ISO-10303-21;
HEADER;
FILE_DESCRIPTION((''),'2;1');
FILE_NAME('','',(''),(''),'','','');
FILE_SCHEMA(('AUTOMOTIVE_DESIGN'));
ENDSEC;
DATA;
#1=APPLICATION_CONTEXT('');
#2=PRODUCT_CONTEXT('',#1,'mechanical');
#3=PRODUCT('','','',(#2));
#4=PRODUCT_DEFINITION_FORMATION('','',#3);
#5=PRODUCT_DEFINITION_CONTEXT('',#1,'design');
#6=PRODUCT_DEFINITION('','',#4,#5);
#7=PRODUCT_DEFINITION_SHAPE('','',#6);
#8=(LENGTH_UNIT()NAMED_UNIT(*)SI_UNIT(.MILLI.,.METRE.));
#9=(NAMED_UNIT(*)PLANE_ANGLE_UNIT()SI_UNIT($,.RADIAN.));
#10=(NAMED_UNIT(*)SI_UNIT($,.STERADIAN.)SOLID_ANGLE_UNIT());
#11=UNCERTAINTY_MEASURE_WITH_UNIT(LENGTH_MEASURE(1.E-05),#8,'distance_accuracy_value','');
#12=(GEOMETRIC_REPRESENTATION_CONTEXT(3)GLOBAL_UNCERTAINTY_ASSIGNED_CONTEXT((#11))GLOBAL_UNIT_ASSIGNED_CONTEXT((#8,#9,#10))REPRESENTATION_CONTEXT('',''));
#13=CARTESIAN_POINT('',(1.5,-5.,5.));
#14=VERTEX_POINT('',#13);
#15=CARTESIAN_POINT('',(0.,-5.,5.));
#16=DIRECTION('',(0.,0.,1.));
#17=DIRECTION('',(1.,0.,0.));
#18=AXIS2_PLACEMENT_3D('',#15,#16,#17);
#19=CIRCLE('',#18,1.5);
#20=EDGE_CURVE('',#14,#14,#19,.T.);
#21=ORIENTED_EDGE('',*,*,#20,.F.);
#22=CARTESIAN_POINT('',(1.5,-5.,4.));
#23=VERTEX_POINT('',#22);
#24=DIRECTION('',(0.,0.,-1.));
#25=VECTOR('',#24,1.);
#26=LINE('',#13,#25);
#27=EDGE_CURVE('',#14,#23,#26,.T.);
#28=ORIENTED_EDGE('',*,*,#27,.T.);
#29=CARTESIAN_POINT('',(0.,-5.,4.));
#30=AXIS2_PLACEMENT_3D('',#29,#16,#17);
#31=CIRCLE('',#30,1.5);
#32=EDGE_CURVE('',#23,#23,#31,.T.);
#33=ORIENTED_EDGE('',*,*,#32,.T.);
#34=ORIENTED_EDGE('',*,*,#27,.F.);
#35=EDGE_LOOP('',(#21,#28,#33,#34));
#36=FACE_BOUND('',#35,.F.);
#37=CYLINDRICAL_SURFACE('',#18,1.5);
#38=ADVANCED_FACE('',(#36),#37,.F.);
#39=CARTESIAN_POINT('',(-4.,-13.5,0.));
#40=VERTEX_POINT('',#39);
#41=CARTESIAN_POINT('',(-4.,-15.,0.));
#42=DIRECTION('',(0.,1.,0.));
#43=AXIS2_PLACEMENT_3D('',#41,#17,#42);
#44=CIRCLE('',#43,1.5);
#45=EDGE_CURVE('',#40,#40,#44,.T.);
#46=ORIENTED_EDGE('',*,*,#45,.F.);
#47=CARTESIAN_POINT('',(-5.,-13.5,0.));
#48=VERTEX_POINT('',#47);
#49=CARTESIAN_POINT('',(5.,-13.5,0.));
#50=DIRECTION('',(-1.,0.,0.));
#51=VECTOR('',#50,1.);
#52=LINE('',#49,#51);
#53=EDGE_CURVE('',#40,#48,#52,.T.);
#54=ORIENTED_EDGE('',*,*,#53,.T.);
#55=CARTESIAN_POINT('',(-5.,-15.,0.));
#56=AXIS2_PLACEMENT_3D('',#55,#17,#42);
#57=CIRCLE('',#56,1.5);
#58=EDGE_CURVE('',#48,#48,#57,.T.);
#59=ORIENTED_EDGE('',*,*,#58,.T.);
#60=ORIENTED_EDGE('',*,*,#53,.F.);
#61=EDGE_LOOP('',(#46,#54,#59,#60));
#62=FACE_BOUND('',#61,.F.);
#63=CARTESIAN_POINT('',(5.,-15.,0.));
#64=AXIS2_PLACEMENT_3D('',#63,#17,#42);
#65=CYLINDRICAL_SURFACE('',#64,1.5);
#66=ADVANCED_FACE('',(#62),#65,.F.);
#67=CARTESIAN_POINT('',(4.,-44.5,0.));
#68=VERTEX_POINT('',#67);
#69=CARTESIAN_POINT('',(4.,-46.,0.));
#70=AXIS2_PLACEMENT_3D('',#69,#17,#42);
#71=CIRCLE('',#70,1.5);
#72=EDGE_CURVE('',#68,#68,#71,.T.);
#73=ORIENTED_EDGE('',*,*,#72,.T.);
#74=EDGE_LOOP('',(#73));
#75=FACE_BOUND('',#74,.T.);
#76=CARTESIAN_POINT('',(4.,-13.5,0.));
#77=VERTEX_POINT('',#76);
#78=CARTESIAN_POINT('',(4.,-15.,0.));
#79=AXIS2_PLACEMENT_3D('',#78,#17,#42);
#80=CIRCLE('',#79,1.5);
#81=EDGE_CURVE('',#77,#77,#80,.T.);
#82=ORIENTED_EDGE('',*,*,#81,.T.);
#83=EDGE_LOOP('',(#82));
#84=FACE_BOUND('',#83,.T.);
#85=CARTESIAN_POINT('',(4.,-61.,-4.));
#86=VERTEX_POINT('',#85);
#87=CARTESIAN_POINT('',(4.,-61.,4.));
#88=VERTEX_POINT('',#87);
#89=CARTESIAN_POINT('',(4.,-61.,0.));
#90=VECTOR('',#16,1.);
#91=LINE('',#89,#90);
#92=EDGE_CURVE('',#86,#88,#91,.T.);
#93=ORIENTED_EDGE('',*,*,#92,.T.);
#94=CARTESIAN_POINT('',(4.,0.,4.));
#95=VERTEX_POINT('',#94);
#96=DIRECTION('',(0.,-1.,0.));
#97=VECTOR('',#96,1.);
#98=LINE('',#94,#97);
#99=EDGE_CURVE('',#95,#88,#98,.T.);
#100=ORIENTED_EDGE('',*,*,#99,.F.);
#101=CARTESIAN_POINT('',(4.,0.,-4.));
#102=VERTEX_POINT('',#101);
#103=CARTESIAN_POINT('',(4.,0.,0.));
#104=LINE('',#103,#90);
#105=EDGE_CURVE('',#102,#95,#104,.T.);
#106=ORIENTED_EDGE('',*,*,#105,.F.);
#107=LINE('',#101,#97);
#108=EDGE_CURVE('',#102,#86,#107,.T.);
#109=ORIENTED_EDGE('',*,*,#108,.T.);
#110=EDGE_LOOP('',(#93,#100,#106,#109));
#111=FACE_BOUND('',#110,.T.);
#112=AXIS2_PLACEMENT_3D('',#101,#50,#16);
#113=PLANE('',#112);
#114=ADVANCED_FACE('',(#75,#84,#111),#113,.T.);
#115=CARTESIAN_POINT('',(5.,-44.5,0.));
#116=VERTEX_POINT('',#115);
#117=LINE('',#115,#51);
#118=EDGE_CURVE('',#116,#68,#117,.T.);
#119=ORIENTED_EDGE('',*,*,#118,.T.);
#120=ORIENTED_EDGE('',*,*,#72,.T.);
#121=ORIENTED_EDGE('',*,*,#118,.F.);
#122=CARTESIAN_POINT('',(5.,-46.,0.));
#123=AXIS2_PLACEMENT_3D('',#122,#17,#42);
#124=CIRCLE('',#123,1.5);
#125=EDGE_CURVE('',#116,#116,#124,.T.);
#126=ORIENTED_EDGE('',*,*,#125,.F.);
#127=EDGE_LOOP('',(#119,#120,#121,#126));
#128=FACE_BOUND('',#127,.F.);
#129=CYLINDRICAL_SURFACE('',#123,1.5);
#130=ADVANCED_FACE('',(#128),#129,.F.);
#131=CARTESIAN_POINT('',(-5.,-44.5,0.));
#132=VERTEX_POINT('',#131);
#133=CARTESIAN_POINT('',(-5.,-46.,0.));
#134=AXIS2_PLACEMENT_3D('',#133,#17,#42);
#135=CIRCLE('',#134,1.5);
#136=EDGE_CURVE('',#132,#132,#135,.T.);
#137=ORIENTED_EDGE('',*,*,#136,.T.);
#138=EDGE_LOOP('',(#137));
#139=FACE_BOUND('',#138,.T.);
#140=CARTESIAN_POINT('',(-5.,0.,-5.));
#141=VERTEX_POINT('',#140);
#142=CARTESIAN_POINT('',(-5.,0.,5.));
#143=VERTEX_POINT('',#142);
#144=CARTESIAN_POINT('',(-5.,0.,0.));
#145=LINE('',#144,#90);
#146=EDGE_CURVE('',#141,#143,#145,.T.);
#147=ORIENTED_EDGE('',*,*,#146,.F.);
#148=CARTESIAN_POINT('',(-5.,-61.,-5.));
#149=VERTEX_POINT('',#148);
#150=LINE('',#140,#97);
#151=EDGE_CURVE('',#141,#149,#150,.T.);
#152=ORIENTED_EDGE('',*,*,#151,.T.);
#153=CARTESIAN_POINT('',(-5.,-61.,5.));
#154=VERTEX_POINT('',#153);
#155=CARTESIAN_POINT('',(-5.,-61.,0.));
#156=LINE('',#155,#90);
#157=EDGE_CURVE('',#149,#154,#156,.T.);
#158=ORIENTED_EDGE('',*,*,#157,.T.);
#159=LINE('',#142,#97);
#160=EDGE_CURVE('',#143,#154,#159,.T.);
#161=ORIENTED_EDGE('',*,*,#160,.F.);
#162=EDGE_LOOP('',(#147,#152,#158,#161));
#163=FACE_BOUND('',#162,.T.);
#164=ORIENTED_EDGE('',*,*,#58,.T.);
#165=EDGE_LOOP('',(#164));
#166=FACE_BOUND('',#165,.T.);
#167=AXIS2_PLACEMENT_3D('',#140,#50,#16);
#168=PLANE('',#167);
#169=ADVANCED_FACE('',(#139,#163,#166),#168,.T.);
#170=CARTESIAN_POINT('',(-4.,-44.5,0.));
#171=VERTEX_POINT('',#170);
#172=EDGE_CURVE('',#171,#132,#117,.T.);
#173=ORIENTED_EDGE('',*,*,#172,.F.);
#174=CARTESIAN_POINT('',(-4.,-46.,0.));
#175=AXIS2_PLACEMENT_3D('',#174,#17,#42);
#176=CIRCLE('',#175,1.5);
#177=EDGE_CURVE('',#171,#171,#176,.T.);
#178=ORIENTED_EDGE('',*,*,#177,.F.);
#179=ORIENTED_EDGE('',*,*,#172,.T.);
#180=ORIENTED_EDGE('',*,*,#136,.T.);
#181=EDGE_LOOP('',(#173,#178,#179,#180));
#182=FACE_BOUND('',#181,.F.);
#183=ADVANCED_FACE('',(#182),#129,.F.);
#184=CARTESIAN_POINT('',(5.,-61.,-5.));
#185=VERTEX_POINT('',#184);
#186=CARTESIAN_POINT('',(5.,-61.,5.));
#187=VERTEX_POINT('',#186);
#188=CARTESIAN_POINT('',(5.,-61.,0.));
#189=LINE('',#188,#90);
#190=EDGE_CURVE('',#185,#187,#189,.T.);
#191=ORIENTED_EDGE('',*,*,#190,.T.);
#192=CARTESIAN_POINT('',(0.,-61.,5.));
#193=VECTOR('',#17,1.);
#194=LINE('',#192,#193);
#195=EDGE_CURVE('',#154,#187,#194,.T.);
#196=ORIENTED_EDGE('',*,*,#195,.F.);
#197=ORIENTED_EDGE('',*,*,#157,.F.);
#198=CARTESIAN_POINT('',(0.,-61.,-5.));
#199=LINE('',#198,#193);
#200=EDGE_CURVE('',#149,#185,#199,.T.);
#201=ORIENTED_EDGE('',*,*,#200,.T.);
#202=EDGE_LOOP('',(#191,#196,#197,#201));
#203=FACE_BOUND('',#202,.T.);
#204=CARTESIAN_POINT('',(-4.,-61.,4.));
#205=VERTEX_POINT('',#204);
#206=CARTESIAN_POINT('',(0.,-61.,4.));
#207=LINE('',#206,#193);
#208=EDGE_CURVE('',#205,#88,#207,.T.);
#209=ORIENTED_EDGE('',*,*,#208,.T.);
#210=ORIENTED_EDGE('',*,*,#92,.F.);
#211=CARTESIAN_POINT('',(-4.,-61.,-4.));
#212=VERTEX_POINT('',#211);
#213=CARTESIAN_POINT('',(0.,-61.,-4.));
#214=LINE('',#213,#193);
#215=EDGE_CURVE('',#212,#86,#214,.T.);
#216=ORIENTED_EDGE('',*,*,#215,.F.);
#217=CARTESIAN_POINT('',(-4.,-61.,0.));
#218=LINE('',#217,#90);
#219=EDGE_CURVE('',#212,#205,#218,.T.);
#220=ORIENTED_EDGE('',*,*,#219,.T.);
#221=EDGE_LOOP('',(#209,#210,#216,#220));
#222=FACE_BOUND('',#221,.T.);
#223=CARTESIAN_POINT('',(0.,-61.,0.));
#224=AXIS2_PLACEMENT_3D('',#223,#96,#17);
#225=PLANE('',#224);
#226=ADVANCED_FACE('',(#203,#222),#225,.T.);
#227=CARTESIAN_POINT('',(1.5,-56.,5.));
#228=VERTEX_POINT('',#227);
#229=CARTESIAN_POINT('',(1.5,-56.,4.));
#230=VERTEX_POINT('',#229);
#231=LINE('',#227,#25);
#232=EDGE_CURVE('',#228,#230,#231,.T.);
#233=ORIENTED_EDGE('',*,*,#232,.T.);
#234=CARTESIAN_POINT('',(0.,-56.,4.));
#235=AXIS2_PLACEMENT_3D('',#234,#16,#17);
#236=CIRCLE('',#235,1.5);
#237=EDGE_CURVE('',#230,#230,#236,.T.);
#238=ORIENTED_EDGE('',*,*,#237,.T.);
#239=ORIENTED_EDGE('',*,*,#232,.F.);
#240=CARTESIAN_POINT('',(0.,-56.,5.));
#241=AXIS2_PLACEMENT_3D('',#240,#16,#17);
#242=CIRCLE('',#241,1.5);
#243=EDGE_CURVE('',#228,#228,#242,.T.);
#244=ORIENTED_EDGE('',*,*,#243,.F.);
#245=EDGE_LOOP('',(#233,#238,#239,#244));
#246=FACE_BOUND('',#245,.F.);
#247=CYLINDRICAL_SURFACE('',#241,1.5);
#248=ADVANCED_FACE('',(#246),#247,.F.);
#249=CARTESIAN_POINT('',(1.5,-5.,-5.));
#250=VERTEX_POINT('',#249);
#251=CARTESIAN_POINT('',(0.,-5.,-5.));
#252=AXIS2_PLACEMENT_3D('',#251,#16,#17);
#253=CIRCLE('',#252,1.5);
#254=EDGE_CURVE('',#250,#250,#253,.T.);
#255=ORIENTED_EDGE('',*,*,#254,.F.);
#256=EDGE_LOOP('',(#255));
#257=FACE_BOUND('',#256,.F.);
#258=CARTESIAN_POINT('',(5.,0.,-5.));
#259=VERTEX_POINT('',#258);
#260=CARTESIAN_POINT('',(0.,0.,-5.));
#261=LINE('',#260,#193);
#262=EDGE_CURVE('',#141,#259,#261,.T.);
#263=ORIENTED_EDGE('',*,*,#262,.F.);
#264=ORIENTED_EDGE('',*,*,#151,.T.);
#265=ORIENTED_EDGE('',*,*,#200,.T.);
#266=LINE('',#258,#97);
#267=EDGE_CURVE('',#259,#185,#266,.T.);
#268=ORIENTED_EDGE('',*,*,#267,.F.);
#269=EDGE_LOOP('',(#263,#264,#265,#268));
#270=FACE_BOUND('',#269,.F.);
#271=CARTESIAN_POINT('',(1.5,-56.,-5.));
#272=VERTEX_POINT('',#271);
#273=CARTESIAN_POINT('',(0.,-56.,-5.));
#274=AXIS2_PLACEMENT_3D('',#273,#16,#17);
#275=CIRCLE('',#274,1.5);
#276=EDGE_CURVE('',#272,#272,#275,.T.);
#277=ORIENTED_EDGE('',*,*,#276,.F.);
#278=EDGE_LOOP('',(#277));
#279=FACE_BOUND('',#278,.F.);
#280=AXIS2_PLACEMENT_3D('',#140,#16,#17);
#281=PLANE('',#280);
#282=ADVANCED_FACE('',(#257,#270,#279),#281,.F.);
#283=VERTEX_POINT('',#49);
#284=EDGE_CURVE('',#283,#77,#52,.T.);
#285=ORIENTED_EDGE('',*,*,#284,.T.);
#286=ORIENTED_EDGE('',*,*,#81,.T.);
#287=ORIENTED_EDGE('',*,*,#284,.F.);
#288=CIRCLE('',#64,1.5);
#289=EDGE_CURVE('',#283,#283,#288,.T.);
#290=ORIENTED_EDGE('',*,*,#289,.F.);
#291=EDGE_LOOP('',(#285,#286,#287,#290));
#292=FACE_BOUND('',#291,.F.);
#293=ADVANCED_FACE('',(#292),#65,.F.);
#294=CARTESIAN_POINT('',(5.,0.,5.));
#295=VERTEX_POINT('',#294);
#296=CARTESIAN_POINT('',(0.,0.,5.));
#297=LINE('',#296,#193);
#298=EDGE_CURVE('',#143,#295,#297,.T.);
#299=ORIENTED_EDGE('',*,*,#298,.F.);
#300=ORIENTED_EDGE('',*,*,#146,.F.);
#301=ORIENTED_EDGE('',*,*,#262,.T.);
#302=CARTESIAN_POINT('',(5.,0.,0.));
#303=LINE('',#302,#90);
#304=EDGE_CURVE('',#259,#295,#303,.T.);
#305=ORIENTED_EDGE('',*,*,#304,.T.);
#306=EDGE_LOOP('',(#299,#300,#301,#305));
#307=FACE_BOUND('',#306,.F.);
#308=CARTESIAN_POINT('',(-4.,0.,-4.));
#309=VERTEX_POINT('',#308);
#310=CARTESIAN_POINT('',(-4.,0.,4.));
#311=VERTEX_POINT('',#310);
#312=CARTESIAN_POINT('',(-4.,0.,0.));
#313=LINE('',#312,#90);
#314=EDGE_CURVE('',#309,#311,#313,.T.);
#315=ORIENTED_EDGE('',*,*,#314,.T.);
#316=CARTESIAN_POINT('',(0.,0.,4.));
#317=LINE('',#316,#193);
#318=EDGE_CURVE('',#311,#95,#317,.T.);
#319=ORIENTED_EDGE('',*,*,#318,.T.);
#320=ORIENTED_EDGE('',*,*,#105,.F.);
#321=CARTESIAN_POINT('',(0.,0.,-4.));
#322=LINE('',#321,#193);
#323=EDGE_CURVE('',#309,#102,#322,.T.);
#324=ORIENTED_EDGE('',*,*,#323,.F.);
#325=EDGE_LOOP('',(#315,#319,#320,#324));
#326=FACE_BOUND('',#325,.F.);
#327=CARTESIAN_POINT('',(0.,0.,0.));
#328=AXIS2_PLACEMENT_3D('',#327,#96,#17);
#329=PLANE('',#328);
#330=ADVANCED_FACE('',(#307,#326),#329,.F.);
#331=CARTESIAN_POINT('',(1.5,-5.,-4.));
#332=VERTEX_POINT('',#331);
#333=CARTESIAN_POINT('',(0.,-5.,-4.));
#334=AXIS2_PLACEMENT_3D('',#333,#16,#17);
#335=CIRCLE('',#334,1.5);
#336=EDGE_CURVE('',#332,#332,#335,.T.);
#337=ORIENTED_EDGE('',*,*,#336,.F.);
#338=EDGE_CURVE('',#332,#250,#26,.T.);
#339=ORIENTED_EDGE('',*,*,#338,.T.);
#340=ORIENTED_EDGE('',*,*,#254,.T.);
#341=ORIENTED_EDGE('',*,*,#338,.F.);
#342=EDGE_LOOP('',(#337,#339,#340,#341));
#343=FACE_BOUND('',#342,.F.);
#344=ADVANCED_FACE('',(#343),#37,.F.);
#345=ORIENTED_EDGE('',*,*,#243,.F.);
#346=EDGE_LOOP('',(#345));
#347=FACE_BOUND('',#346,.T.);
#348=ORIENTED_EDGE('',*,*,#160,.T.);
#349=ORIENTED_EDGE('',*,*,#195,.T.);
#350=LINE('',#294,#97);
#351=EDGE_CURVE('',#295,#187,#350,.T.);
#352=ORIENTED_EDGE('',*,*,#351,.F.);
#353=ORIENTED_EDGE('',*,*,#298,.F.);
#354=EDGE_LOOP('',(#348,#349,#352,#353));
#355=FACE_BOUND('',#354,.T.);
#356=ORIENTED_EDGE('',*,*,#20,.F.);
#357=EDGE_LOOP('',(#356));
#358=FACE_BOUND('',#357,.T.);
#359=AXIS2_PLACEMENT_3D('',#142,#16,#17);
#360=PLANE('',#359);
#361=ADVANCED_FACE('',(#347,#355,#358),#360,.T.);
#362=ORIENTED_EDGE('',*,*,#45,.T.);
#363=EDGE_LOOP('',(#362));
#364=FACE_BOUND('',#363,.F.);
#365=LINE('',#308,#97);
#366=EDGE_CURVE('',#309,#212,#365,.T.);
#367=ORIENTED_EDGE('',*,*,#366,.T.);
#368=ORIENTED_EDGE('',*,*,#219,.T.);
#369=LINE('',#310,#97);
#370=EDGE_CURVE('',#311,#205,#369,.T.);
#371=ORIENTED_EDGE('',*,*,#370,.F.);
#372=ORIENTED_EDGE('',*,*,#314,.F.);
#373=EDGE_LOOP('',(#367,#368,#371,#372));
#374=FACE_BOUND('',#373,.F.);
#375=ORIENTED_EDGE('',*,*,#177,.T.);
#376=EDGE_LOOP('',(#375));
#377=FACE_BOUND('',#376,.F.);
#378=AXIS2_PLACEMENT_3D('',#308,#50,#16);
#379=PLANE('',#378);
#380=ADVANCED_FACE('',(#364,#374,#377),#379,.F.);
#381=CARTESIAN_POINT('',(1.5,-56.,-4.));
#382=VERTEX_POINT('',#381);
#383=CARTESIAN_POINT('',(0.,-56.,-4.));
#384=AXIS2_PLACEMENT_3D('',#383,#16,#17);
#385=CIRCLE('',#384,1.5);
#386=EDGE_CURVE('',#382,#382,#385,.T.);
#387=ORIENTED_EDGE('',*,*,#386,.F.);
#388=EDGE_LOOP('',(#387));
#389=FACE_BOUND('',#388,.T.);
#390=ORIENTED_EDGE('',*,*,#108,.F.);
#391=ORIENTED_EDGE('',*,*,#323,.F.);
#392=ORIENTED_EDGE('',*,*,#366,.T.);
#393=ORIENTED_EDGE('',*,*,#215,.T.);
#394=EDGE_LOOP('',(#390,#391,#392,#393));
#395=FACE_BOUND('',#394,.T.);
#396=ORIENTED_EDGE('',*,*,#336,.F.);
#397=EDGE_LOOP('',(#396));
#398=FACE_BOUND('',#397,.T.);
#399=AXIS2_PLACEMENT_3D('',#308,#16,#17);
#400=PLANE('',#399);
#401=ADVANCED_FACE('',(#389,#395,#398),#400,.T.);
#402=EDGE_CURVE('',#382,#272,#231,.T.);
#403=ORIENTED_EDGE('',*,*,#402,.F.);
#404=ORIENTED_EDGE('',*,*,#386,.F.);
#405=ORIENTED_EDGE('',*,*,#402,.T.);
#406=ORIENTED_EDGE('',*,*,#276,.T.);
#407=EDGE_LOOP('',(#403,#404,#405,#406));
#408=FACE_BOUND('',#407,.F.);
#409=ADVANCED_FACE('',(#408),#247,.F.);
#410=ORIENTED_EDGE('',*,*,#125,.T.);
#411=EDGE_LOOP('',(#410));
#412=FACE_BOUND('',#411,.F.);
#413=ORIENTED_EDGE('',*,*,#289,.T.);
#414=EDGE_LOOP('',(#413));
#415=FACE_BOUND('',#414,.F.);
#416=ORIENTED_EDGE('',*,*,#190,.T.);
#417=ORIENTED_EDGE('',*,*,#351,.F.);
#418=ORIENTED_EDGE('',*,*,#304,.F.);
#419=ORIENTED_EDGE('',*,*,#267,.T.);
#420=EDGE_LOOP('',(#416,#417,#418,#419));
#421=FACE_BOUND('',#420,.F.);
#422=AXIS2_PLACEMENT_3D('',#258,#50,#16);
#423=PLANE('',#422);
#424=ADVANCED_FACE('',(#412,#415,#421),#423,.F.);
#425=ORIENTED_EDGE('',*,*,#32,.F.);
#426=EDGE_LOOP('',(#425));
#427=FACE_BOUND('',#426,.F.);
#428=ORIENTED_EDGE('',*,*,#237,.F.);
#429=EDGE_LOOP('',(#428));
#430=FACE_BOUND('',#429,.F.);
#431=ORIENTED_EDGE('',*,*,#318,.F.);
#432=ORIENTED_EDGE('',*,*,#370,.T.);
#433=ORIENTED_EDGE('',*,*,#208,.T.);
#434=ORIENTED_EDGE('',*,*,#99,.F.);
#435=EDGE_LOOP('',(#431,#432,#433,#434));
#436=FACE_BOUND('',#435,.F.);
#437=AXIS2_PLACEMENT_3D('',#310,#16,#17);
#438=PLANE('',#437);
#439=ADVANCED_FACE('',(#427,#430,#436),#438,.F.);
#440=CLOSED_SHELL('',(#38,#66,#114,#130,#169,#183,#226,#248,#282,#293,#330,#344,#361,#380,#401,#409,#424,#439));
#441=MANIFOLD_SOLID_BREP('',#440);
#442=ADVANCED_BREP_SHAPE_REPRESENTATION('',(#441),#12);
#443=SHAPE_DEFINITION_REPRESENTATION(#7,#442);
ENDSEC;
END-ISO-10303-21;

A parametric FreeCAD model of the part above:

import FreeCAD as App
import Part
import Sketcher


def add_polygon(sketch, points):
    """Adds a closed chain of lines whose ends are joined by coincident constraints."""
    first, n = sketch.GeometryCount, len(points)
    for a, b in zip(points, points[1:] + points[:1]):
        sketch.addGeometry(Part.LineSegment(App.Vector(*a, 0), App.Vector(*b, 0)), False)
    for i in range(n):
        sketch.addConstraint(Sketcher.Constraint("Coincident", first + i, 2, first + (i + 1) % n, 1))

doc = App.newDocument("Part")
body = doc.addObject("PartDesign::Body", "Body")

# Sketch on XZ plane
sketch1 = doc.addObject("Sketcher::SketchObject", "Sketch")
body.addObject(sketch1)
sketch1.AttachmentSupport = (doc.XZ_Plane, [""])
sketch1.MapMode = "FlatFace"
add_polygon(sketch1, [(-5, 5), (-5, -5), (5, -5), (5, 5)])  # lines 0-3
add_polygon(sketch1, [(4, -4), (-4, -4), (-4, 4), (4, 4)])  # lines 4-7
sketch1.addConstraint(Sketcher.Constraint("Vertical", 0))
sketch1.addConstraint(Sketcher.Constraint("Horizontal", 1))
sketch1.addConstraint(Sketcher.Constraint("Vertical", 2))
sketch1.addConstraint(Sketcher.Constraint("Horizontal", 3))
sketch1.addConstraint(Sketcher.Constraint("Horizontal", 4))
sketch1.addConstraint(Sketcher.Constraint("Vertical", 5))
sketch1.addConstraint(Sketcher.Constraint("Horizontal", 6))
sketch1.addConstraint(Sketcher.Constraint("Vertical", 7))
sketch1.addConstraint(Sketcher.Constraint("Symmetric", 0, 2, 2, 2, -1, 1))
sketch1.addConstraint(Sketcher.Constraint("Symmetric", 4, 2, 6, 2, -1, 1))
sketch1.addConstraint(Sketcher.Constraint("Equal", 3, 0))
sketch1.addConstraint(Sketcher.Constraint("Equal", 6, 5))
sketch1.addConstraint(Sketcher.Constraint("DistanceX", 1, 1, 1, 2, 10.0))
sketch1.addConstraint(Sketcher.Constraint("DistanceX", 4, 2, 4, 1, 8.0))
pad1 = doc.addObject("PartDesign::Pad", "Pad")
body.addObject(pad1)
pad1.Profile = sketch1
pad1.Length = 61

# Sketch on XY plane
sketch2 = doc.addObject("Sketcher::SketchObject", "Sketch001")
body.addObject(sketch2)
sketch2.AttachmentSupport = (doc.XY_Plane, [""])
sketch2.MapMode = "FlatFace"
sketch2.AttachmentOffset = App.Placement(App.Vector(0, 0, 5), App.Rotation())
sketch2.addGeometry(Part.Circle(App.Vector(0, -5, 0), App.Vector(0, 0, 1), 1.5), False)
sketch2.addGeometry(Part.Circle(App.Vector(0, -56, 0), App.Vector(0, 0, 1), 1.5), False)
sketch2.addConstraint(Sketcher.Constraint("Equal", 0, 1))
sketch2.addConstraint(Sketcher.Constraint("PointOnObject", 0, 3, -2))
sketch2.addConstraint(Sketcher.Constraint("PointOnObject", 1, 3, -2))
sketch2.addConstraint(Sketcher.Constraint("Diameter", 0, 3.0))
sketch2.addConstraint(Sketcher.Constraint("DistanceY", 0, 3, -1, 1, 5.0))
sketch2.addConstraint(Sketcher.Constraint("DistanceY", 1, 3, -1, 1, 56.0))
pocket1 = doc.addObject("PartDesign::Pocket", "Pocket")
body.addObject(pocket1)
pocket1.Profile = sketch2
pocket1.Length = 25

# Sketch on YZ plane
sketch3 = doc.addObject("Sketcher::SketchObject", "Sketch002")
body.addObject(sketch3)
sketch3.AttachmentSupport = (doc.YZ_Plane, [""])
sketch3.MapMode = "FlatFace"
sketch3.AttachmentOffset = App.Placement(App.Vector(0, 0, 5), App.Rotation())
sketch3.addGeometry(Part.Circle(App.Vector(-46, 0, 0), App.Vector(0, 0, 1), 1.5), False)
sketch3.addGeometry(Part.Circle(App.Vector(-15, 0, 0), App.Vector(0, 0, 1), 1.5), False)
sketch3.addConstraint(Sketcher.Constraint("Equal", 0, 1))
sketch3.addConstraint(Sketcher.Constraint("PointOnObject", 0, 3, -1))
sketch3.addConstraint(Sketcher.Constraint("PointOnObject", 1, 3, -1))
sketch3.addConstraint(Sketcher.Constraint("Diameter", 0, 3.0))
sketch3.addConstraint(Sketcher.Constraint("DistanceX", 0, 3, -1, 1, 46.0))
sketch3.addConstraint(Sketcher.Constraint("DistanceX", 1, 3, -1, 1, 15.0))
pocket2 = doc.addObject("PartDesign::Pocket", "Pocket001")
body.addObject(pocket2)
pocket2.Profile = sketch3
pocket2.Length = 25

doc.recompute()
